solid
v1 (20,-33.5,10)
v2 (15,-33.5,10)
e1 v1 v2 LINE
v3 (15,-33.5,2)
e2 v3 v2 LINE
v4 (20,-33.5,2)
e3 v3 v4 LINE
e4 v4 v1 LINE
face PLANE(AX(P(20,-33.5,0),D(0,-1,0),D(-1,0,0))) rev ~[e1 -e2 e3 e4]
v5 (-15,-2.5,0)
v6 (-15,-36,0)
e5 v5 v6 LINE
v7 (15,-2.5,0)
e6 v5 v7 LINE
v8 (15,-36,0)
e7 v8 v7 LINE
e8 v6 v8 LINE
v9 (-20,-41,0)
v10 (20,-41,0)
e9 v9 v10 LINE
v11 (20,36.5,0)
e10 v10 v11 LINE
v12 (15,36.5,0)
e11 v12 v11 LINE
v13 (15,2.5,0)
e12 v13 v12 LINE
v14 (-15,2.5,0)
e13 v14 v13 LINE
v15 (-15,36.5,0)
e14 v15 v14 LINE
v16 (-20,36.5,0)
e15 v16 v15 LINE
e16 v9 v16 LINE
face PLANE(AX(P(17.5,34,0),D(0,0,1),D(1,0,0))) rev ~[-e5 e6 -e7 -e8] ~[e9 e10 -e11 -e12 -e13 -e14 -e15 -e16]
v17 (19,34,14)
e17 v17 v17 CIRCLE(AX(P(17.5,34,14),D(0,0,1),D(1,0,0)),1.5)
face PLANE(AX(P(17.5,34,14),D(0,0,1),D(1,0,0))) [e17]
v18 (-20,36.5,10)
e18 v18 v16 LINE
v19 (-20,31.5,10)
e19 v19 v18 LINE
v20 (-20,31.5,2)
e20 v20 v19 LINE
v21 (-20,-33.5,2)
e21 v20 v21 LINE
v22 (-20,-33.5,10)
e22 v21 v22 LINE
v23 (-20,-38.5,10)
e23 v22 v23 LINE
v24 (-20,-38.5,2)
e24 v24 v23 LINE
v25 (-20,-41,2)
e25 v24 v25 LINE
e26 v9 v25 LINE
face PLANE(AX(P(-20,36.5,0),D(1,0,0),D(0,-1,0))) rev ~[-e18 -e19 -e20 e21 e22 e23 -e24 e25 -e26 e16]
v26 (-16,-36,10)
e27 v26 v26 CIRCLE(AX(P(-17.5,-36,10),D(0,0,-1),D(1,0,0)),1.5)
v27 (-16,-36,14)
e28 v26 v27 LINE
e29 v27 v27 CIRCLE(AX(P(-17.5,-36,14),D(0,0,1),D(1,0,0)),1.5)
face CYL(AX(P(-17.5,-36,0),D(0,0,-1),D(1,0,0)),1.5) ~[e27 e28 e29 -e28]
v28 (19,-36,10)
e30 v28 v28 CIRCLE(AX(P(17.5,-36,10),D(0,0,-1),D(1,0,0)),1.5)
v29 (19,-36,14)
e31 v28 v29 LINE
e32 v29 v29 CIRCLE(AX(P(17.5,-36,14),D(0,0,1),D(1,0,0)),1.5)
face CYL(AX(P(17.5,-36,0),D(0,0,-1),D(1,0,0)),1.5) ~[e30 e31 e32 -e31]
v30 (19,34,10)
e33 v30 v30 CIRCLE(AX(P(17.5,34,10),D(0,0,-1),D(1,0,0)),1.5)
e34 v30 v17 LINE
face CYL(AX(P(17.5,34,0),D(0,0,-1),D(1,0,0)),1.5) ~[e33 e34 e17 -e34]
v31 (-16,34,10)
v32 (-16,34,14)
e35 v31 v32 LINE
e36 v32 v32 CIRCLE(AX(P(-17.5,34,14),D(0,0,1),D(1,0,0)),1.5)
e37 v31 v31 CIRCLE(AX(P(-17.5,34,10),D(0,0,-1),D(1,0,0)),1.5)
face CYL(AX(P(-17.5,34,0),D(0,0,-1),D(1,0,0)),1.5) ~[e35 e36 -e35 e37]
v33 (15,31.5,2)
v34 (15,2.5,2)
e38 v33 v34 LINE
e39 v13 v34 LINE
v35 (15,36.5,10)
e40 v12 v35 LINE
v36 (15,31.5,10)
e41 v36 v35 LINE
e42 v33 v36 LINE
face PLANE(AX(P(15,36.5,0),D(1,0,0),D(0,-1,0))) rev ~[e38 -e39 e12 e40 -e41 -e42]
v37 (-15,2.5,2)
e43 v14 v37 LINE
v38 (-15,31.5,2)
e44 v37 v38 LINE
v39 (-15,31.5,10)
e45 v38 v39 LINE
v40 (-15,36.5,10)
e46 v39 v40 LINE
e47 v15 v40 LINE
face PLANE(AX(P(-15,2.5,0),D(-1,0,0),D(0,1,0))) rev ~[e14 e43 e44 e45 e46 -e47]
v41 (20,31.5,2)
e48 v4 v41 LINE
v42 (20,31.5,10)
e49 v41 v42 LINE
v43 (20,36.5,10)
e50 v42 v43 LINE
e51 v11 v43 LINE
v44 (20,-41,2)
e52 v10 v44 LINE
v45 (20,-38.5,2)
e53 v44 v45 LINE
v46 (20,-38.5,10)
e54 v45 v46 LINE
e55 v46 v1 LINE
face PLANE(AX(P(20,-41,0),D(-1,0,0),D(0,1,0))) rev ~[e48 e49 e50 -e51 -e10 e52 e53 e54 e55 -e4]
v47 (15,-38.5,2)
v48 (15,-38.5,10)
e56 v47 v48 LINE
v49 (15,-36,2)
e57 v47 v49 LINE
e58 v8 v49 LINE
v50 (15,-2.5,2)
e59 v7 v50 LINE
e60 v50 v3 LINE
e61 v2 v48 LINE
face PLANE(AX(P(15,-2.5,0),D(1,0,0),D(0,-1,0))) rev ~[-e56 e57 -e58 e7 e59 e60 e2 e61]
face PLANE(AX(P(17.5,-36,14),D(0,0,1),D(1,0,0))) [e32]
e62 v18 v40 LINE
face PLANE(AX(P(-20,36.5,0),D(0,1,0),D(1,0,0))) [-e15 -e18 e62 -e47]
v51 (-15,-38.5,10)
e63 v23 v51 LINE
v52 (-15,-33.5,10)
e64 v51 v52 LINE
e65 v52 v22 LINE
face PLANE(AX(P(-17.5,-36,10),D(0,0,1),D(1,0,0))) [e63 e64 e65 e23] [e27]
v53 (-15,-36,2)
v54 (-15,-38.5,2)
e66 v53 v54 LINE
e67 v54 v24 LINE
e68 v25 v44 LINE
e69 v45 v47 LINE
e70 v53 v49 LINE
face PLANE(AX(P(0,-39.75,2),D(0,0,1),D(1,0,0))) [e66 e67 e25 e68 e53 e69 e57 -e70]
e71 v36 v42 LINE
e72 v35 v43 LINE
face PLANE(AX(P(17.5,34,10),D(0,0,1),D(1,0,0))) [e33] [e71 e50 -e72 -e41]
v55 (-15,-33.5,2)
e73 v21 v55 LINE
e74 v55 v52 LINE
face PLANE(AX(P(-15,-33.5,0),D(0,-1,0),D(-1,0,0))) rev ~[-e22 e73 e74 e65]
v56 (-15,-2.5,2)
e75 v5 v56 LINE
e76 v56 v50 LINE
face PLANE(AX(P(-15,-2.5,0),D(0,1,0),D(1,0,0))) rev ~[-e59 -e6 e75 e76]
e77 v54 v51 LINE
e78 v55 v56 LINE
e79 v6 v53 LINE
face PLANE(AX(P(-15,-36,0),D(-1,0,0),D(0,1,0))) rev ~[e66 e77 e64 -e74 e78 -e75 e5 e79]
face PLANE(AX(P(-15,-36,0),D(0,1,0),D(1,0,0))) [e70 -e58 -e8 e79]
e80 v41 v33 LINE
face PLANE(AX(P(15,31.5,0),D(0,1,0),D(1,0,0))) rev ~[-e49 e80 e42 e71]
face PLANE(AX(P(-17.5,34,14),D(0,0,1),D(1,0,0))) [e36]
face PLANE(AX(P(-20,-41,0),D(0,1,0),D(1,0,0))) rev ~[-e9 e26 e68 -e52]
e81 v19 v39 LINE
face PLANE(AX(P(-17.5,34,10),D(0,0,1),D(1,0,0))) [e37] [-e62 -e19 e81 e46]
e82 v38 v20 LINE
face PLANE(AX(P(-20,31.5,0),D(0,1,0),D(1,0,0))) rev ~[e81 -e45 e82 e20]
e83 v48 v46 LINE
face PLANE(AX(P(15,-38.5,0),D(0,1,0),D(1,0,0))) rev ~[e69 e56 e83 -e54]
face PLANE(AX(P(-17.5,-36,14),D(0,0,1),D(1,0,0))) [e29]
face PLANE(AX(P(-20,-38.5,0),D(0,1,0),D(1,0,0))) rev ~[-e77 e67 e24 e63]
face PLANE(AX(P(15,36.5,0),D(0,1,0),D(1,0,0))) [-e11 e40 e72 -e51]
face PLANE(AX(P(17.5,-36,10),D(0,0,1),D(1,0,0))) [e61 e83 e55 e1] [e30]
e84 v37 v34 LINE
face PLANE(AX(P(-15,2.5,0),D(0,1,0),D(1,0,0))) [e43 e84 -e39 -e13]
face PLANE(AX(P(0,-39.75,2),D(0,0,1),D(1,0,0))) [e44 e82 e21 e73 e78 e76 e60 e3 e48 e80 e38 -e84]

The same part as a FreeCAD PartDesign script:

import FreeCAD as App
import Part
import Sketcher
from FreeCAD import Vector
Q = App.Units.Quantity


def add_polygon(sketch, points):
    """Adds a closed chain of lines whose ends are joined by coincident constraints."""
    first, n = sketch.GeometryCount, len(points)
    for a, b in zip(points, points[1:] + points[:1]):
        sketch.addGeometry(Part.LineSegment(App.Vector(*a, 0), App.Vector(*b, 0)), False)
    for i in range(n):
        sketch.addConstraint(Sketcher.Constraint("Coincident", first + i, 2, first + (i + 1) % n, 1))

doc = App.newDocument("Part")
params = doc.addObject("Spreadsheet::Sheet", "Params")
for row, (alias, value) in enumerate([
    ("sketch1_width", "40 mm"),
    ("sketch1_width2", "5 mm"),
    ("sketch1_height", "34 mm"),
    ("sketch1_height2", "77.5 mm"),
    ("sketch1_height3", "33.5 mm"),
    ("pad1_length", "2 mm"),
    ("sketch2_width", "5 mm"),
    ("pad2_length", "10 mm"),
    ("sketch3_diameter", "3 mm"),
    ("pad3_length", "14 mm"),
], start=1):
    params.set(f"A{row}", alias)
    params.set(f"B{row}", "=" + value)
    params.setAlias(f"B{row}", alias)

body = doc.addObject("PartDesign::Body", "Body")

# Sketch on XY plane
sketch1 = doc.addObject("Sketcher::SketchObject", "Sketch")
body.addObject(sketch1)
sketch1.AttachmentSupport = (doc.XY_Plane, [""])
sketch1.MapMode = "FlatFace"
add_polygon(sketch1, [(-20, -41), (20, -41), (20, 36.5), (15, 36.5), (15, 2.5), (-15, 2.5), (-15, 36.5), (-20, 36.5)])  # lines 0-7
add_polygon(sketch1, [(15, -2.5), (15, -36), (-15, -36), (-15, -2.5)])  # lines 8-11
sketch1.addConstraint(Sketcher.Constraint("Horizontal", 0))
sketch1.addConstraint(Sketcher.Constraint("Vertical", 1))
sketch1.addConstraint(Sketcher.Constraint("Horizontal", 2))
sketch1.addConstraint(Sketcher.Constraint("Vertical", 3))
sketch1.addConstraint(Sketcher.Constraint("Horizontal", 4))
sketch1.addConstraint(Sketcher.Constraint("Vertical", 5))
sketch1.addConstraint(Sketcher.Constraint("Horizontal", 6))
sketch1.addConstraint(Sketcher.Constraint("Vertical", 7))
sketch1.addConstraint(Sketcher.Constraint("Vertical", 8))
sketch1.addConstraint(Sketcher.Constraint("Horizontal", 9))
sketch1.addConstraint(Sketcher.Constraint("Vertical", 10))
sketch1.addConstraint(Sketcher.Constraint("Horizontal", 11))
sketch1.addConstraint(Sketcher.Constraint("Symmetric", 3, 2, 10, 2, -1, 1))
sketch1.addConstraint(Sketcher.Constraint("Symmetric", 2, 2, 5, 2, -2))
sketch1.addConstraint(Sketcher.Constraint("Vertical", 3, 2, 8, 2))
sketch1.addConstraint(Sketcher.Constraint("Equal", 2, 6))
sketch1.addConstraint(Sketcher.Constraint("DistanceX", 0, 1, 0, 2, Q("40 mm")))
sketch1.addConstraint(Sketcher.Constraint("DistanceX", 2, 2, 2, 1, Q("5 mm")))
sketch1.addConstraint(Sketcher.Constraint("DistanceY", 3, 2, 3, 1, Q("34 mm")))
sketch1.addConstraint(Sketcher.Constraint("DistanceY", 1, 1, 1, 2, Q("77.5 mm")))
sketch1.addConstraint(Sketcher.Constraint("DistanceY", 8, 2, 8, 1, Q("33.5 mm")))
sketch1.addConstraint(Sketcher.Constraint("DistanceY", 0, 2, -1, 1, Q("41 mm")))
sketch1.setExpression("Constraints[28]", "Params.sketch1_width")
sketch1.setExpression("Constraints[29]", "Params.sketch1_width2")
sketch1.setExpression("Constraints[30]", "Params.sketch1_height")
sketch1.setExpression("Constraints[31]", "Params.sketch1_height2")
sketch1.setExpression("Constraints[32]", "Params.sketch1_height3")
pad1 = doc.addObject("PartDesign::Pad", "Pad")
body.addObject(pad1)
pad1.Profile = sketch1
pad1.setExpression("Length", "Params.pad1_length")

# Sketch on XY plane
sketch2 = doc.addObject("Sketcher::SketchObject", "Sketch001")
body.addObject(sketch2)
sketch2.AttachmentSupport = (doc.XY_Plane, [""])
sketch2.MapMode = "FlatFace"
add_polygon(sketch2, [(15, 36.5), (15, 31.5), (20, 31.5), (20, 36.5)])  # lines 0-3
add_polygon(sketch2, [(-20, 36.5), (-20, 31.5), (-15, 31.5), (-15, 36.5)])  # lines 4-7
add_polygon(sketch2, [(15, -38.5), (20, -38.5), (20, -33.5), (15, -33.5)])  # lines 8-11
add_polygon(sketch2, [(-20, -33.5), (-20, -38.5), (-15, -38.5), (-15, -33.5)])  # lines 12-15
sketch2.addConstraint(Sketcher.Constraint("Vertical", 0))
sketch2.addConstraint(Sketcher.Constraint("Horizontal", 1))
sketch2.addConstraint(Sketcher.Constraint("Vertical", 2))
sketch2.addConstraint(Sketcher.Constraint("Horizontal", 3))
sketch2.addConstraint(Sketcher.Constraint("Vertical", 4))
sketch2.addConstraint(Sketcher.Constraint("Horizontal", 5))
sketch2.addConstraint(Sketcher.Constraint("Vertical", 6))
sketch2.addConstraint(Sketcher.Constraint("Horizontal", 7))
sketch2.addConstraint(Sketcher.Constraint("Horizontal", 8))
sketch2.addConstraint(Sketcher.Constraint("Vertical", 9))
sketch2.addConstraint(Sketcher.Constraint("Horizontal", 10))
sketch2.addConstraint(Sketcher.Constraint("Vertical", 11))
sketch2.addConstraint(Sketcher.Constraint("Vertical", 12))
sketch2.addConstraint(Sketcher.Constraint("Horizontal", 13))
sketch2.addConstraint(Sketcher.Constraint("Vertical", 14))
sketch2.addConstraint(Sketcher.Constraint("Horizontal", 15))
sketch2.addConstraint(Sketcher.Constraint("Symmetric", 1, 2, 4, 2, -2))
sketch2.addConstraint(Sketcher.Constraint("Symmetric", 3, 2, 6, 2, -2))
sketch2.addConstraint(Sketcher.Constraint("Symmetric", 8, 2, 12, 2, -2))
sketch2.addConstraint(Sketcher.Constraint("Symmetric", 10, 2, 14, 2, -2))
sketch2.addConstraint(Sketcher.Constraint("Vertical", 2, 2, 8, 2))
sketch2.addConstraint(Sketcher.Constraint("Vertical", 3, 2, 10, 2))
sketch2.addConstraint(Sketcher.Constraint("Equal", 15, 0))
sketch2.addConstraint(Sketcher.Constraint("Equal", 6, 9))
sketch2.addConstraint(Sketcher.Constraint("DistanceX", 1, 1, 1, 2, Q("5 mm")))
sketch2.addConstraint(Sketcher.Constraint("DistanceX", -1, 1, 0, 2, Q("15 mm")))
sketch2.addConstraint(Sketcher.Constraint("DistanceY", 8, 2, 1, 2, Q("70 mm")))
sketch2.addConstraint(Sketcher.Constraint("DistanceY", -1, 1, 0, 2, Q("31.5 mm")))
sketch2.setExpression("Constraints[40]", "Params.sketch2_width")
pad2 = doc.addObject("PartDesign::Pad", "Pad001")
body.addObject(pad2)
pad2.Profile = sketch2
pad2.setExpression("Length", "Params.pad2_length")

# Sketch on XY plane
sketch3 = doc.addObject("Sketcher::SketchObject", "Sketch002")
body.addObject(sketch3)
sketch3.AttachmentSupport = (doc.XY_Plane, [""])
sketch3.MapMode = "FlatFace"
sketch3.addGeometry(Part.Circle(Vector(17.5, 34, 0), Vector(0, 0, 1), 1.5), False)
sketch3.addGeometry(Part.Circle(Vector(-17.5, 34, 0), Vector(0, 0, 1), 1.5), False)
sketch3.addGeometry(Part.Circle(Vector(17.5, -36, 0), Vector(0, 0, 1), 1.5), False)
sketch3.addGeometry(Part.Circle(Vector(-17.5, -36, 0), Vector(0, 0, 1), 1.5), False)
sketch3.addConstraint(Sketcher.Constraint("Equal", 0, 1))
sketch3.addConstraint(Sketcher.Constraint("Equal", 1, 2))
sketch3.addConstraint(Sketcher.Constraint("Equal", 2, 3))
sketch3.addConstraint(Sketcher.Constraint("Symmetric", 0, 3, 1, 3, -2))
sketch3.addConstraint(Sketcher.Constraint("Symmetric", 2, 3, 3, 3, -2))
sketch3.addConstraint(Sketcher.Constraint("Vertical", 0, 3, 2, 3))
sketch3.addConstraint(Sketcher.Constraint("Diameter", 0, Q("3 mm")))
sketch3.addConstraint(Sketcher.Constraint("DistanceY", -1, 1, 0, 3, Q("34 mm")))
sketch3.addConstraint(Sketcher.Constraint("DistanceY", 2, 3, -1, 1, Q("36 mm")))
sketch3.addConstraint(Sketcher.Constraint("DistanceX", 1, 3, 0, 3, Q("35 mm")))
sketch3.setExpression("Constraints[6]", "Params.sketch3_diameter")
pad3 = doc.addObject("PartDesign::Pad", "Pad002")
body.addObject(pad3)
pad3.Profile = sketch3
pad3.setExpression("Length", "Params.pad3_length")

doc.recompute()
